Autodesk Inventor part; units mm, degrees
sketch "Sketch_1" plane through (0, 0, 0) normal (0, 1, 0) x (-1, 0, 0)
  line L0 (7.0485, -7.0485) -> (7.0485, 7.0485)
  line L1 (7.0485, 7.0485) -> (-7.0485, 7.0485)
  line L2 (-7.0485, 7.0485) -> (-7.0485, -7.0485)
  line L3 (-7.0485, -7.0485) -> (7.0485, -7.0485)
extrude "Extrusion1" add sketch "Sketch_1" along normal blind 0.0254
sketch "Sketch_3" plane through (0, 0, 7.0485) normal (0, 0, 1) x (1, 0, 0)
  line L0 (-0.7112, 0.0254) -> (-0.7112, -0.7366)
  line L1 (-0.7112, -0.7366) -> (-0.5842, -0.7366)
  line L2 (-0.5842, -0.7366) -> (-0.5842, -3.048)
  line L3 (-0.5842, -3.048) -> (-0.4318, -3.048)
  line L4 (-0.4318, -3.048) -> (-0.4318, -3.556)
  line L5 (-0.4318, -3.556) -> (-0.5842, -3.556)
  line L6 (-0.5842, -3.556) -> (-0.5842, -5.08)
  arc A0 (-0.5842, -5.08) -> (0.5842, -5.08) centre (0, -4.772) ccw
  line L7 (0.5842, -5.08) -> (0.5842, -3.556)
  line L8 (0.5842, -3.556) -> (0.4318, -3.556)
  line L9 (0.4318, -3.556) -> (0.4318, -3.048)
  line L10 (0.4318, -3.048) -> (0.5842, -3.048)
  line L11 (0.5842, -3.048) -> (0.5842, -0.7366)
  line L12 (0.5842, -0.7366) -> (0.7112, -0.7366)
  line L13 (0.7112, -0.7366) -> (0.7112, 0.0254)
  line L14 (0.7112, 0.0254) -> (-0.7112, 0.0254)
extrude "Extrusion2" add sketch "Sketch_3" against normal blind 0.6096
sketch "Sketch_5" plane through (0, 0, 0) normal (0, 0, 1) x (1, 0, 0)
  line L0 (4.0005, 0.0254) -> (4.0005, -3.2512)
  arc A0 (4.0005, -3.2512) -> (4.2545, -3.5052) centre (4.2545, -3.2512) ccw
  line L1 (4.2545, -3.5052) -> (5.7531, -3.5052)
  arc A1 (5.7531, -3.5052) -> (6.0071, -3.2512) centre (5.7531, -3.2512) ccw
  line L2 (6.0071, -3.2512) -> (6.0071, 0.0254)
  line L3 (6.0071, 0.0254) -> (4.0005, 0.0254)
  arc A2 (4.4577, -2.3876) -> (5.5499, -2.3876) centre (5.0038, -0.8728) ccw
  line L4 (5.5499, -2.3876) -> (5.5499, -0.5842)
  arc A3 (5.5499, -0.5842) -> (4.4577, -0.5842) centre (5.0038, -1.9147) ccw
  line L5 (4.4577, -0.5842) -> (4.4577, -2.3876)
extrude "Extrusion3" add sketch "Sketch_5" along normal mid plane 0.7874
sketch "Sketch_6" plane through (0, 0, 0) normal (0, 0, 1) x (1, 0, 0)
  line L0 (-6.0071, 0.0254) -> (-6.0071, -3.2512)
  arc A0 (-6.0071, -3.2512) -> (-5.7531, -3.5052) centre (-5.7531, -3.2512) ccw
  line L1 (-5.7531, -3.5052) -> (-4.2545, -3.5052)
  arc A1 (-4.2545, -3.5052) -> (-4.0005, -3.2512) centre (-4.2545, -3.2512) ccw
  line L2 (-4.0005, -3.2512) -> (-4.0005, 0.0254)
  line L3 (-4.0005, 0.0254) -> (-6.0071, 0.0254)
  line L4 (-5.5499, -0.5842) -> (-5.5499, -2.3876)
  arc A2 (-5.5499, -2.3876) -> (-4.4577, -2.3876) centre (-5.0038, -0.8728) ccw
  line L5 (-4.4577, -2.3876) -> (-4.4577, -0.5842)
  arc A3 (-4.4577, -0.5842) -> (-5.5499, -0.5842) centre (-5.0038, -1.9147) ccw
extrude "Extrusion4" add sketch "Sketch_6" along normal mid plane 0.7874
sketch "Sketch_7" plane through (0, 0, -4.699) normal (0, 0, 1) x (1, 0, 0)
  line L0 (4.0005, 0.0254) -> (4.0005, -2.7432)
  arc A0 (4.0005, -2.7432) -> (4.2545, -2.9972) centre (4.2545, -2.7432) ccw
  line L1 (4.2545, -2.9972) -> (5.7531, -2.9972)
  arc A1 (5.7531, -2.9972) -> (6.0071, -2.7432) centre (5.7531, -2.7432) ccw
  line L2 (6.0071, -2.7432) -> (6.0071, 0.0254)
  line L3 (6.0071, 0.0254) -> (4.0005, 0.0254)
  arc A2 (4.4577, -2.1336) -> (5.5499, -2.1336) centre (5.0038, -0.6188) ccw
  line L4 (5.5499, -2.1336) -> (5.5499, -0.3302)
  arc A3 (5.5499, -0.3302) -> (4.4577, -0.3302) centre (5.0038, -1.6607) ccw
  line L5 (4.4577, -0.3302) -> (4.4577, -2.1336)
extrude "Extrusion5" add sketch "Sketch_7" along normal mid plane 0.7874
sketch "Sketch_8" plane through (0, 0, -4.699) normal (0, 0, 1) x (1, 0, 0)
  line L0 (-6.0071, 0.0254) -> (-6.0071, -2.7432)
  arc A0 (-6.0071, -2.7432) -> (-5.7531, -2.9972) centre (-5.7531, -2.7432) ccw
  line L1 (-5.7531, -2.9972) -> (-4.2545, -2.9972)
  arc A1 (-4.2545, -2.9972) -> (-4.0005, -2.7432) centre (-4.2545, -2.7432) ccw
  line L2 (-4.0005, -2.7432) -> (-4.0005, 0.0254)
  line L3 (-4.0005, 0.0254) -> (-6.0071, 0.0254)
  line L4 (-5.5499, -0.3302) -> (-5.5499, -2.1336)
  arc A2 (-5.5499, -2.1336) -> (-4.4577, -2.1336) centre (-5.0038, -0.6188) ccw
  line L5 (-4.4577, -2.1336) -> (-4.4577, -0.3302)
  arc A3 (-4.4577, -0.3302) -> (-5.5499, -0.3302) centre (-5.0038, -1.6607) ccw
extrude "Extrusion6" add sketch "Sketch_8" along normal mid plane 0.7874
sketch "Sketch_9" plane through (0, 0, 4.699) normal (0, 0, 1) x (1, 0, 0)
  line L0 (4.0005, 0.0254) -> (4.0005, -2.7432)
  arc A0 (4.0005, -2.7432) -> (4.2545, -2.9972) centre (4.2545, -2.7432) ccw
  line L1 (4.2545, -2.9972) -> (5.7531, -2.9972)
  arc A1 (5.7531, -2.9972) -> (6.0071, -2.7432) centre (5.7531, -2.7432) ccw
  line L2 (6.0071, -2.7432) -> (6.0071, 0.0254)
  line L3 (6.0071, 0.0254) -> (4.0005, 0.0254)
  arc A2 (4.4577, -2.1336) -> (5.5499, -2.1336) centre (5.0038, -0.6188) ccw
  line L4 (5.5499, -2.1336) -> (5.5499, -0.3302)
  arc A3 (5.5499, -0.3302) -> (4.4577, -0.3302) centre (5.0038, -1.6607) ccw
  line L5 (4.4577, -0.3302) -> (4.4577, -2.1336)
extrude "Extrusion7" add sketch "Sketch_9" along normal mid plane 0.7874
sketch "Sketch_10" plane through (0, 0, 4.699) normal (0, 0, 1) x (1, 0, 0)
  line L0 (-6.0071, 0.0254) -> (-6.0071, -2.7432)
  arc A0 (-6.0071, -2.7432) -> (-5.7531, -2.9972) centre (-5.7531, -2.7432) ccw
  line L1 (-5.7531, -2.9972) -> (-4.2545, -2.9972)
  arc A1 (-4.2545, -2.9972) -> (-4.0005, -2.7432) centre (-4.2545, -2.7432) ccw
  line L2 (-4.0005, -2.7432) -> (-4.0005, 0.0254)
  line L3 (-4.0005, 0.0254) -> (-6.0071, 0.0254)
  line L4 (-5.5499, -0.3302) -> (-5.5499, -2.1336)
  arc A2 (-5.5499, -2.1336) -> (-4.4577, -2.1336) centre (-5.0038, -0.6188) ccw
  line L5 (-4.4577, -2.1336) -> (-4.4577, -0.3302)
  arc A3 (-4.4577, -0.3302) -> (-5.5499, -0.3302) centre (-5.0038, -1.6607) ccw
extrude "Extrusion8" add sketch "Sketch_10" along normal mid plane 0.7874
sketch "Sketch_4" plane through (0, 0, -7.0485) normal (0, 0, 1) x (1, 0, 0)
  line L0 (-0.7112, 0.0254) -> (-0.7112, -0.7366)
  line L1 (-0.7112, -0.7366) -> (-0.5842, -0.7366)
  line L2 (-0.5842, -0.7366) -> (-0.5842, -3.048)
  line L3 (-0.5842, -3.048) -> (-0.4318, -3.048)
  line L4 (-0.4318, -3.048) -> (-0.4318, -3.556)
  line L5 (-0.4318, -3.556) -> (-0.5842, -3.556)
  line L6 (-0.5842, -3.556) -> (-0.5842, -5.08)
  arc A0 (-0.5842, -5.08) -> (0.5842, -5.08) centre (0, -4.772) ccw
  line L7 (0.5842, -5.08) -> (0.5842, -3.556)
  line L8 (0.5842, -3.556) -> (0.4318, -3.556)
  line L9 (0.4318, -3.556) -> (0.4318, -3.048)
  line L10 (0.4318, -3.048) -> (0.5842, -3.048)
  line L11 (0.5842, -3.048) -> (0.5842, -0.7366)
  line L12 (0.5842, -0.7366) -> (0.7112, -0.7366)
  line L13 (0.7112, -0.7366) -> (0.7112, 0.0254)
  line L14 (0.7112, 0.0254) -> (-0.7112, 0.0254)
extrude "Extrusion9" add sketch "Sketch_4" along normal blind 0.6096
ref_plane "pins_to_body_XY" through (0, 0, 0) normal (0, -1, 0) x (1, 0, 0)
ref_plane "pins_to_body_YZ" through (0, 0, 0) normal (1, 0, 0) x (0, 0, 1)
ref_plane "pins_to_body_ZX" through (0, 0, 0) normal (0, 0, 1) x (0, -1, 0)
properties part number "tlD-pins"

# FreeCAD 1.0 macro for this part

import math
import FreeCAD as App
import Part
import Sketcher
Q = App.Units.Quantity


def add_polygon(sketch, points):
    """Adds a closed chain of lines whose ends are joined by coincident constraints."""
    first, n = sketch.GeometryCount, len(points)
    for a, b in zip(points, points[1:] + points[:1]):
        sketch.addGeometry(Part.LineSegment(App.Vector(*a, 0), App.Vector(*b, 0)), False)
    for i in range(n):
        sketch.addConstraint(Sketcher.Constraint("Coincident", first + i, 2, first + (i + 1) % n, 1))

doc = App.newDocument("Part")
body = doc.addObject("PartDesign::Body", "Body")

# Sketch on XZ plane
sketch1 = doc.addObject("Sketcher::SketchObject", "Sketch")
body.addObject(sketch1)
sketch1.AttachmentSupport = (doc.XZ_Plane, [""])
sketch1.MapMode = "FlatFace"
add_polygon(sketch1, [(7, -7), (-7, -7), (-7, 7), (7, 7)])  # lines 0-3
sketch1.addConstraint(Sketcher.Constraint("Horizontal", 0))
sketch1.addConstraint(Sketcher.Constraint("Vertical", 1))
sketch1.addConstraint(Sketcher.Constraint("Horizontal", 2))
sketch1.addConstraint(Sketcher.Constraint("Vertical", 3))
sketch1.addConstraint(Sketcher.Constraint("Symmetric", 0, 2, 2, 2, -1, 1))
sketch1.addConstraint(Sketcher.Constraint("Equal", 2, 1))
sketch1.addConstraint(Sketcher.Constraint("DistanceX", 0, 2, 0, 1, Q("0.555 in")))
pad1 = doc.addObject("PartDesign::Pad", "Pad")
body.addObject(pad1)
pad1.Profile = sketch1
pad1.Length = Q("0.001 in")
pad1.Reversed = True

# Sketch on XY plane
sketch2 = doc.addObject("Sketcher::SketchObject", "Sketch001")
body.addObject(sketch2)
sketch2.AttachmentSupport = (doc.XY_Plane, [""])
sketch2.MapMode = "FlatFace"
sketch2.AttachmentOffset = App.Placement(App.Vector(0, 0, 0.2775 * 25.4), App.Rotation())
sketch2.addGeometry(Part.LineSegment(App.Vector(0.71, 0.03, 0), App.Vector(-0.71, 0.03, 0)), False)
sketch2.addGeometry(Part.LineSegment(App.Vector(-0.71, 0.03, 0), App.Vector(-0.71, -0.74, 0)), False)
sketch2.addGeometry(Part.LineSegment(App.Vector(-0.71, -0.74, 0), App.Vector(-0.58, -0.74, 0)), False)
sketch2.addGeometry(Part.LineSegment(App.Vector(-0.58, -0.74, 0), App.Vector(-0.58, -3.05, 0)), False)
sketch2.addGeometry(Part.LineSegment(App.Vector(-0.58, -3.05, 0), App.Vector(-0.43, -3.05, 0)), False)
sketch2.addGeometry(Part.LineSegment(App.Vector(-0.43, -3.05, 0), App.Vector(-0.43, -3.56, 0)), False)
sketch2.addGeometry(Part.LineSegment(App.Vector(-0.43, -3.56, 0), App.Vector(-0.58, -3.56, 0)), False)
sketch2.addGeometry(Part.LineSegment(App.Vector(-0.58, -3.56, 0), App.Vector(-0.58, -5.08, 0)), False)
sketch2.addGeometry(Part.ArcOfCircle(Part.Circle(App.Vector(0, -4.77, 0), App.Vector(0, 0, 1), 0.66), math.radians(-152), math.radians(-28)), False)
sketch2.addGeometry(Part.LineSegment(App.Vector(0.58, -5.08, 0), App.Vector(0.58, -3.56, 0)), False)
sketch2.addGeometry(Part.LineSegment(App.Vector(0.58, -3.56, 0), App.Vector(0.43, -3.56, 0)), False)
sketch2.addGeometry(Part.LineSegment(App.Vector(0.43, -3.56, 0), App.Vector(0.43, -3.05, 0)), False)
sketch2.addGeometry(Part.LineSegment(App.Vector(0.43, -3.05, 0), App.Vector(0.58, -3.05, 0)), False)
sketch2.addGeometry(Part.LineSegment(App.Vector(0.58, -3.05, 0), App.Vector(0.58, -0.74, 0)), False)
sketch2.addGeometry(Part.LineSegment(App.Vector(0.58, -0.74, 0), App.Vector(0.71, -0.74, 0)), False)
sketch2.addGeometry(Part.LineSegment(App.Vector(0.71, -0.74, 0), App.Vector(0.71, 0.03, 0)), False)
sketch2.addConstraint(Sketcher.Constraint("Coincident", 0, 2, 1, 1))
sketch2.addConstraint(Sketcher.Constraint("Coincident", 1, 2, 2, 1))
sketch2.addConstraint(Sketcher.Constraint("Coincident", 2, 2, 3, 1))
sketch2.addConstraint(Sketcher.Constraint("Coincident", 3, 2, 4, 1))
sketch2.addConstraint(Sketcher.Constraint("Coincident", 4, 2, 5, 1))
sketch2.addConstraint(Sketcher.Constraint("Coincident", 5, 2, 6, 1))
sketch2.addConstraint(Sketcher.Constraint("Coincident", 6, 2, 7, 1))
sketch2.addConstraint(Sketcher.Constraint("Coincident", 7, 2, 8, 1))
sketch2.addConstraint(Sketcher.Constraint("Coincident", 8, 2, 9, 1))
sketch2.addConstraint(Sketcher.Constraint("Coincident", 9, 2, 10, 1))
sketch2.addConstraint(Sketcher.Constraint("Coincident", 10, 2, 11, 1))
sketch2.addConstraint(Sketcher.Constraint("Coincident", 11, 2, 12, 1))
sketch2.addConstraint(Sketcher.Constraint("Coincident", 12, 2, 13, 1))
sketch2.addConstraint(Sketcher.Constraint("Coincident", 13, 2, 14, 1))
sketch2.addConstraint(Sketcher.Constraint("Coincident", 14, 2, 15, 1))
sketch2.addConstraint(Sketcher.Constraint("Coincident", 15, 2, 0, 1))
sketch2.addConstraint(Sketcher.Constraint("Horizontal", 0))
sketch2.addConstraint(Sketcher.Constraint("Vertical", 1))
sketch2.addConstraint(Sketcher.Constraint("Horizontal", 2))
sketch2.addConstraint(Sketcher.Constraint("Vertical", 3))
sketch2.addConstraint(Sketcher.Constraint("Horizontal", 4))
sketch2.addConstraint(Sketcher.Constraint("Vertical", 5))
sketch2.addConstraint(Sketcher.Constraint("Horizontal", 6))
sketch2.addConstraint(Sketcher.Constraint("Vertical", 7))
sketch2.addConstraint(Sketcher.Constraint("Vertical", 9))
sketch2.addConstraint(Sketcher.Constraint("Horizontal", 10))
sketch2.addConstraint(Sketcher.Constraint("Vertical", 11))
sketch2.addConstraint(Sketcher.Constraint("Horizontal", 12))
sketch2.addConstraint(Sketcher.Constraint("Vertical", 13))
sketch2.addConstraint(Sketcher.Constraint("Horizontal", 14))
sketch2.addConstraint(Sketcher.Constraint("Vertical", 15))
sketch2.addConstraint(Sketcher.Constraint("Symmetric", 7, 2, 8, 2, -2))
sketch2.addConstraint(Sketcher.Constraint("Symmetric", 5, 2, 10, 2, -2))
sketch2.addConstraint(Sketcher.Constraint("Symmetric", 3, 2, 12, 2, -2))
sketch2.addConstraint(Sketcher.Constraint("Symmetric", 1, 2, 14, 2, -2))
sketch2.addConstraint(Sketcher.Constraint("Vertical", 3, 2, 6, 2))
sketch2.addConstraint(Sketcher.Constraint("Radius", 8, Q("0.026 in")))
sketch2.addConstraint(Sketcher.Constraint("DistanceY", 1, 2, 1, 1, Q("0.03 in")))
sketch2.addConstraint(Sketcher.Constraint("DistanceY", 5, 2, 5, 1, Q("0.02 in")))
sketch2.addConstraint(Sketcher.Constraint("DistanceY", 7, 2, 7, 1, Q("0.06 in")))
sketch2.addConstraint(Sketcher.Constraint("DistanceY", 7, 2, -1, 1, Q("0.2 in")))
sketch2.addConstraint(Sketcher.Constraint("DistanceX", 0, 2, 0, 1, Q("0.056 in")))
sketch2.addConstraint(Sketcher.Constraint("DistanceX", 2, 1, 2, 2, Q("0.005 in")))
sketch2.addConstraint(Sketcher.Constraint("DistanceX", 4, 1, 4, 2, Q("0.006 in")))
sketch2.addConstraint(Sketcher.Constraint("DistanceY", 3, 2, 3, 1, Q("0.091 in")))
pad2 = doc.addObject("PartDesign::Pad", "Pad001")
body.addObject(pad2)
pad2.Profile = sketch2
pad2.Length = Q("0.024 in")
pad2.Reversed = True

# Sketch on XY plane
sketch3 = doc.addObject("Sketcher::SketchObject", "Sketch002")
body.addObject(sketch3)
sketch3.AttachmentSupport = (doc.XY_Plane, [""])
sketch3.MapMode = "FlatFace"
sketch3.addGeometry(Part.LineSegment(App.Vector(6.01, 0.03, 0), App.Vector(4, 0.03, 0)), False)
sketch3.addGeometry(Part.LineSegment(App.Vector(4, 0.03, 0), App.Vector(4, -3.25, 0)), False)
sketch3.addGeometry(Part.ArcOfCircle(Part.Circle(App.Vector(4.25, -3.25, 0), App.Vector(0, 0, 1), 0.25), math.radians(180), math.radians(270)), False)
sketch3.addGeometry(Part.LineSegment(App.Vector(4.25, -3.51, 0), App.Vector(5.75, -3.51, 0)), False)
sketch3.addGeometry(Part.ArcOfCircle(Part.Circle(App.Vector(5.75, -3.25, 0), App.Vector(0, 0, 1), 0.25), math.radians(-90), math.radians(0)), False)
sketch3.addGeometry(Part.LineSegment(App.Vector(6.01, -3.25, 0), App.Vector(6.01, 0.03, 0)), False)
sketch3.addGeometry(Part.ArcOfCircle(Part.Circle(App.Vector(5, -0.87, 0), App.Vector(0, 0, 1), 1.61), math.radians(-110), math.radians(-70)), False)
sketch3.addGeometry(Part.LineSegment(App.Vector(4.46, -2.39, 0), App.Vector(4.46, -0.58, 0)), False)
sketch3.addGeometry(Part.ArcOfCircle(Part.Circle(App.Vector(5, -1.91, 0), App.Vector(0, 0, 1), 1.44), math.radians(68), math.radians(112)), False)
sketch3.addGeometry(Part.LineSegment(App.Vector(5.55, -0.58, 0), App.Vector(5.55, -2.39, 0)), False)
sketch3.addConstraint(Sketcher.Constraint("Coincident", 0, 2, 1, 1))
sketch3.addConstraint(Sketcher.Constraint("Tangent", 1, 2, 2, 1))
sketch3.addConstraint(Sketcher.Constraint("Tangent", 2, 2, 3, 1))
sketch3.addConstraint(Sketcher.Constraint("Tangent", 3, 2, 4, 1))
sketch3.addConstraint(Sketcher.Constraint("Tangent", 4, 2, 5, 1))
sketch3.addConstraint(Sketcher.Constraint("Coincident", 5, 2, 0, 1))
sketch3.addConstraint(Sketcher.Constraint("Coincident", 6, 1, 7, 1))
sketch3.addConstraint(Sketcher.Constraint("Coincident", 7, 2, 8, 2))
sketch3.addConstraint(Sketcher.Constraint("Coincident", 8, 1, 9, 1))
sketch3.addConstraint(Sketcher.Constraint("Coincident", 9, 2, 6, 2))
sketch3.addConstraint(Sketcher.Constraint("Horizontal", 0))
sketch3.addConstraint(Sketcher.Constraint("Vertical", 1))
sketch3.addConstraint(Sketcher.Constraint("Horizontal", 3))
sketch3.addConstraint(Sketcher.Constraint("Vertical", 5))
sketch3.addConstraint(Sketcher.Constraint("Vertical", 7))
sketch3.addConstraint(Sketcher.Constraint("Vertical", 9))
sketch3.addConstraint(Sketcher.Constraint("Equal", 2, 4))
sketch3.addConstraint(Sketcher.Constraint("Horizontal", 7, 2, 8, 1))
sketch3.addConstraint(Sketcher.Constraint("Horizontal", 6, 1, 9, 2))
sketch3.addConstraint(Sketcher.Constraint("Radius", 2, Q("0.01 in")))
sketch3.addConstraint(Sketcher.Constraint("Radius", 6, Q("0.0634 in")))
sketch3.addConstraint(Sketcher.Constraint("DistanceX", 0, 2, 0, 1, Q("0.079 in")))
sketch3.addConstraint(Sketcher.Constraint("DistanceY", 1, 2, 1, 1, Q("0.129 in")))
sketch3.addConstraint(Sketcher.Constraint("DistanceY", 7, 1, 7, 2, Q("0.071 in")))
sketch3.addConstraint(Sketcher.Constraint("Radius", 8, Q("1.4382 mm")))
sketch3.addConstraint(Sketcher.Constraint("DistanceY", 2, 3, -1, 1, Q("0.128 in")))
sketch3.addConstraint(Sketcher.Constraint("DistanceX", -1, 1, 6, 3, Q("0.197 in")))
sketch3.addConstraint(Sketcher.Constraint("DistanceY", 6, 1, -1, 1, Q("0.094 in")))
sketch3.addConstraint(Sketcher.Constraint("DistanceX", 2, 3, 6, 1, Q("0.008 in")))
sketch3.addConstraint(Sketcher.Constraint("DistanceX", 8, 1, 5, 2, Q("0.018 in")))
pad3 = doc.addObject("PartDesign::Pad", "Pad002")
body.addObject(pad3)
pad3.Profile = sketch3
pad3.Length = Q("0.031 in")
pad3.Midplane = True

# Sketch on XY plane
sketch4 = doc.addObject("Sketcher::SketchObject", "Sketch003")
body.addObject(sketch4)
sketch4.AttachmentSupport = (doc.XY_Plane, [""])
sketch4.MapMode = "FlatFace"
sketch4.addGeometry(Part.LineSegment(App.Vector(-4, 0.03, 0), App.Vector(-6.01, 0.03, 0)), False)
sketch4.addGeometry(Part.LineSegment(App.Vector(-6.01, 0.03, 0), App.Vector(-6.01, -3.25, 0)), False)
sketch4.addGeometry(Part.ArcOfCircle(Part.Circle(App.Vector(-5.75, -3.25, 0), App.Vector(0, 0, 1), 0.25), math.radians(180), math.radians(270)), False)
sketch4.addGeometry(Part.LineSegment(App.Vector(-5.75, -3.51, 0), App.Vector(-4.25, -3.51, 0)), False)
sketch4.addGeometry(Part.ArcOfCircle(Part.Circle(App.Vector(-4.25, -3.25, 0), App.Vector(0, 0, 1), 0.25), math.radians(-90), math.radians(0)), False)
sketch4.addGeometry(Part.LineSegment(App.Vector(-4, -3.25, 0), App.Vector(-4, 0.03, 0)), False)
sketch4.addGeometry(Part.LineSegment(App.Vector(-5.55, -2.39, 0), App.Vector(-5.55, -0.58, 0)), False)
sketch4.addGeometry(Part.ArcOfCircle(Part.Circle(App.Vector(-5, -1.91, 0), App.Vector(0, 0, 1), 1.44), math.radians(68), math.radians(112)), False)
sketch4.addGeometry(Part.LineSegment(App.Vector(-4.46, -0.58, 0), App.Vector(-4.46, -2.39, 0)), False)
sketch4.addGeometry(Part.ArcOfCircle(Part.Circle(App.Vector(-5, -0.87, 0), App.Vector(0, 0, 1), 1.61), math.radians(-110), math.radians(-70)), False)
sketch4.addConstraint(Sketcher.Constraint("Coincident", 0, 2, 1, 1))
sketch4.addConstraint(Sketcher.Constraint("Tangent", 1, 2, 2, 1))
sketch4.addConstraint(Sketcher.Constraint("Tangent", 2, 2, 3, 1))
sketch4.addConstraint(Sketcher.Constraint("Tangent", 3, 2, 4, 1))
sketch4.addConstraint(Sketcher.Constraint("Tangent", 4, 2, 5, 1))
sketch4.addConstraint(Sketcher.Constraint("Coincident", 5, 2, 0, 1))
sketch4.addConstraint(Sketcher.Constraint("Coincident", 6, 2, 7, 2))
sketch4.addConstraint(Sketcher.Constraint("Coincident", 7, 1, 8, 1))
sketch4.addConstraint(Sketcher.Constraint("Coincident", 8, 2, 9, 2))
sketch4.addConstraint(Sketcher.Constraint("Coincident", 9, 1, 6, 1))
sketch4.addConstraint(Sketcher.Constraint("Horizontal", 0))
sketch4.addConstraint(Sketcher.Constraint("Vertical", 1))
sketch4.addConstraint(Sketcher.Constraint("Horizontal", 3))
sketch4.addConstraint(Sketcher.Constraint("Vertical", 5))
sketch4.addConstraint(Sketcher.Constraint("Vertical", 6))
sketch4.addConstraint(Sketcher.Constraint("Vertical", 8))
sketch4.addConstraint(Sketcher.Constraint("Equal", 2, 4))
sketch4.addConstraint(Sketcher.Constraint("Horizontal", 6, 2, 7, 1))
sketch4.addConstraint(Sketcher.Constraint("Horizontal", 8, 2, 9, 1))
sketch4.addConstraint(Sketcher.Constraint("Radius", 2, Q("0.01 in")))
sketch4.addConstraint(Sketcher.Constraint("Radius", 9, Q("0.0634 in")))
sketch4.addConstraint(Sketcher.Constraint("DistanceX", 0, 2, 0, 1, Q("0.079 in")))
sketch4.addConstraint(Sketcher.Constraint("DistanceY", 1, 2, 1, 1, Q("0.129 in")))
sketch4.addConstraint(Sketcher.Constraint("DistanceY", 6, 1, 6, 2, Q("0.071 in")))
sketch4.addConstraint(Sketcher.Constraint("Radius", 7, Q("1.4382 mm")))
sketch4.addConstraint(Sketcher.Constraint("DistanceY", 2, 3, -1, 1, Q("0.128 in")))
sketch4.addConstraint(Sketcher.Constraint("DistanceX", 7, 3, -1, 1, Q("0.197 in")))
sketch4.addConstraint(Sketcher.Constraint("DistanceY", 6, 2, -1, 1, Q("0.023 in")))
sketch4.addConstraint(Sketcher.Constraint("DistanceX", 0, 2, 6, 2, Q("0.018 in")))
sketch4.addConstraint(Sketcher.Constraint("DistanceX", 7, 1, 5, 2, Q("0.018 in")))
pad4 = doc.addObject("PartDesign::Pad", "Pad003")
body.addObject(pad4)
pad4.Profile = sketch4
pad4.Length = Q("0.031 in")
pad4.Midplane = True

# Sketch on XY plane
sketch5 = doc.addObject("Sketcher::SketchObject", "Sketch004")
body.addObject(sketch5)
sketch5.AttachmentSupport = (doc.XY_Plane, [""])
sketch5.MapMode = "FlatFace"
sketch5.AttachmentOffset = App.Placement(App.Vector(0, 0, -0.185 * 25.4), App.Rotation())
sketch5.addGeometry(Part.LineSegment(App.Vector(6.01, 0.03, 0), App.Vector(4, 0.03, 0)), False)
sketch5.addGeometry(Part.LineSegment(App.Vector(4, 0.03, 0), App.Vector(4, -2.74, 0)), False)
sketch5.addGeometry(Part.ArcOfCircle(Part.Circle(App.Vector(4.25, -2.74, 0), App.Vector(0, 0, 1), 0.25), math.radians(180), math.radians(270)), False)
sketch5.addGeometry(Part.LineSegment(App.Vector(4.25, -3, 0), App.Vector(5.75, -3, 0)), False)
sketch5.addGeometry(Part.ArcOfCircle(Part.Circle(App.Vector(5.75, -2.74, 0), App.Vector(0, 0, 1), 0.25), math.radians(-90), math.radians(0)), False)
sketch5.addGeometry(Part.LineSegment(App.Vector(6.01, -2.74, 0), App.Vector(6.01, 0.03, 0)), False)
sketch5.addGeometry(Part.ArcOfCircle(Part.Circle(App.Vector(5, -0.62, 0), App.Vector(0, 0, 1), 1.61), math.radians(-110), math.radians(-70)), False)
sketch5.addGeometry(Part.LineSegment(App.Vector(4.46, -2.13, 0), App.Vector(4.46, -0.33, 0)), False)
sketch5.addGeometry(Part.ArcOfCircle(Part.Circle(App.Vector(5, -1.66, 0), App.Vector(0, 0, 1), 1.44), math.radians(68), math.radians(112)), False)
sketch5.addGeometry(Part.LineSegment(App.Vector(5.55, -0.33, 0), App.Vector(5.55, -2.13, 0)), False)
sketch5.addConstraint(Sketcher.Constraint("Coincident", 0, 2, 1, 1))
sketch5.addConstraint(Sketcher.Constraint("Tangent", 1, 2, 2, 1))
sketch5.addConstraint(Sketcher.Constraint("Tangent", 2, 2, 3, 1))
sketch5.addConstraint(Sketcher.Constraint("Tangent", 3, 2, 4, 1))
sketch5.addConstraint(Sketcher.Constraint("Tangent", 4, 2, 5, 1))
sketch5.addConstraint(Sketcher.Constraint("Coincident", 5, 2, 0, 1))
sketch5.addConstraint(Sketcher.Constraint("Coincident", 6, 1, 7, 1))
sketch5.addConstraint(Sketcher.Constraint("Coincident", 7, 2, 8, 2))
sketch5.addConstraint(Sketcher.Constraint("Coincident", 8, 1, 9, 1))
sketch5.addConstraint(Sketcher.Constraint("Coincident", 9, 2, 6, 2))
sketch5.addConstraint(Sketcher.Constraint("Horizontal", 0))
sketch5.addConstraint(Sketcher.Constraint("Vertical", 1))
sketch5.addConstraint(Sketcher.Constraint("Horizontal", 3))
sketch5.addConstraint(Sketcher.Constraint("Vertical", 5))
sketch5.addConstraint(Sketcher.Constraint("Vertical", 7))
sketch5.addConstraint(Sketcher.Constraint("Vertical", 9))
sketch5.addConstraint(Sketcher.Constraint("Equal", 2, 4))
sketch5.addConstraint(Sketcher.Constraint("Horizontal", 7, 2, 8, 1))
sketch5.addConstraint(Sketcher.Constraint("Horizontal", 6, 1, 9, 2))
sketch5.addConstraint(Sketcher.Constraint("Radius", 2, Q("0.01 in")))
sketch5.addConstraint(Sketcher.Constraint("Radius", 6, Q("0.0634 in")))
sketch5.addConstraint(Sketcher.Constraint("DistanceX", 0, 2, 0, 1, Q("0.079 in")))
sketch5.addConstraint(Sketcher.Constraint("DistanceY", 1, 2, 1, 1, Q("0.109 in")))
sketch5.addConstraint(Sketcher.Constraint("DistanceY", 7, 1, 7, 2, Q("0.071 in")))
sketch5.addConstraint(Sketcher.Constraint("Radius", 8, Q("1.4382 mm")))
sketch5.addConstraint(Sketcher.Constraint("DistanceY", 2, 3, -1, 1, Q("0.108 in")))
sketch5.addConstraint(Sketcher.Constraint("DistanceX", -1, 1, 6, 3, Q("0.197 in")))
sketch5.addConstraint(Sketcher.Constraint("DistanceY", 6, 1, -1, 1, Q("0.084 in")))
sketch5.addConstraint(Sketcher.Constraint("DistanceX", 2, 3, 6, 1, Q("0.008 in")))
sketch5.addConstraint(Sketcher.Constraint("DistanceX", 8, 1, 5, 2, Q("0.018 in")))
pad5 = doc.addObject("PartDesign::Pad", "Pad004")
body.addObject(pad5)
pad5.Profile = sketch5
pad5.Length = Q("0.031 in")
pad5.Midplane = True

# Sketch on XY plane
sketch6 = doc.addObject("Sketcher::SketchObject", "Sketch005")
body.addObject(sketch6)
sketch6.AttachmentSupport = (doc.XY_Plane, [""])
sketch6.MapMode = "FlatFace"
sketch6.AttachmentOffset = App.Placement(App.Vector(0, 0, -0.185 * 25.4), App.Rotation())
sketch6.addGeometry(Part.LineSegment(App.Vector(-4, 0.03, 0), App.Vector(-6.01, 0.03, 0)), False)
sketch6.addGeometry(Part.LineSegment(App.Vector(-6.01, 0.03, 0), App.Vector(-6.01, -2.74, 0)), False)
sketch6.addGeometry(Part.ArcOfCircle(Part.Circle(App.Vector(-5.75, -2.74, 0), App.Vector(0, 0, 1), 0.25), math.radians(180), math.radians(270)), False)
sketch6.addGeometry(Part.LineSegment(App.Vector(-5.75, -3, 0), App.Vector(-4.25, -3, 0)), False)
sketch6.addGeometry(Part.ArcOfCircle(Part.Circle(App.Vector(-4.25, -2.74, 0), App.Vector(0, 0, 1), 0.25), math.radians(-90), math.radians(0)), False)
sketch6.addGeometry(Part.LineSegment(App.Vector(-4, -2.74, 0), App.Vector(-4, 0.03, 0)), False)
sketch6.addGeometry(Part.LineSegment(App.Vector(-5.55, -2.13, 0), App.Vector(-5.55, -0.33, 0)), False)
sketch6.addGeometry(Part.ArcOfCircle(Part.Circle(App.Vector(-5, -1.66, 0), App.Vector(0, 0, 1), 1.44), math.radians(68), math.radians(112)), False)
sketch6.addGeometry(Part.LineSegment(App.Vector(-4.46, -0.33, 0), App.Vector(-4.46, -2.13, 0)), False)
sketch6.addGeometry(Part.ArcOfCircle(Part.Circle(App.Vector(-5, -0.62, 0), App.Vector(0, 0, 1), 1.61), math.radians(-110), math.radians(-70)), False)
sketch6.addConstraint(Sketcher.Constraint("Coincident", 0, 2, 1, 1))
sketch6.addConstraint(Sketcher.Constraint("Tangent", 1, 2, 2, 1))
sketch6.addConstraint(Sketcher.Constraint("Tangent", 2, 2, 3, 1))
sketch6.addConstraint(Sketcher.Constraint("Tangent", 3, 2, 4, 1))
sketch6.addConstraint(Sketcher.Constraint("Tangent", 4, 2, 5, 1))
sketch6.addConstraint(Sketcher.Constraint("Coincident", 5, 2, 0, 1))
sketch6.addConstraint(Sketcher.Constraint("Coincident", 6, 2, 7, 2))
sketch6.addConstraint(Sketcher.Constraint("Coincident", 7, 1, 8, 1))
sketch6.addConstraint(Sketcher.Constraint("Coincident", 8, 2, 9, 2))
sketch6.addConstraint(Sketcher.Constraint("Coincident", 9, 1, 6, 1))
sketch6.addConstraint(Sketcher.Constraint("Horizontal", 0))
sketch6.addConstraint(Sketcher.Constraint("Vertical", 1))
sketch6.addConstraint(Sketcher.Constraint("Horizontal", 3))
sketch6.addConstraint(Sketcher.Constraint("Vertical", 5))
sketch6.addConstraint(Sketcher.Constraint("Vertical", 6))
sketch6.addConstraint(Sketcher.Constraint("Vertical", 8))
sketch6.addConstraint(Sketcher.Constraint("Equal", 2, 4))
sketch6.addConstraint(Sketcher.Constraint("Horizontal", 6, 2, 7, 1))
sketch6.addConstraint(Sketcher.Constraint("Horizontal", 8, 2, 9, 1))
sketch6.addConstraint(Sketcher.Constraint("Radius", 2, Q("0.01 in")))
sketch6.addConstraint(Sketcher.Constraint("Radius", 9, Q("0.0634 in")))
sketch6.addConstraint(Sketcher.Constraint("DistanceX", 0, 2, 0, 1, Q("0.079 in")))
sketch6.addConstraint(Sketcher.Constraint("DistanceY", 1, 2, 1, 1, Q("0.109 in")))
sketch6.addConstraint(Sketcher.Constraint("DistanceY", 6, 1, 6, 2, Q("0.071 in")))
sketch6.addConstraint(Sketcher.Constraint("Radius", 7, Q("1.4382 mm")))
sketch6.addConstraint(Sketcher.Constraint("DistanceY", 2, 3, -1, 1, Q("0.108 in")))
sketch6.addConstraint(Sketcher.Constraint("DistanceX", 7, 3, -1, 1, Q("0.197 in")))
sketch6.addConstraint(Sketcher.Constraint("DistanceY", 6, 2, -1, 1, Q("0.013 in")))
sketch6.addConstraint(Sketcher.Constraint("DistanceX", 0, 2, 6, 2, Q("0.018 in")))
sketch6.addConstraint(Sketcher.Constraint("DistanceX", 7, 1, 5, 2, Q("0.018 in")))
pad6 = doc.addObject("PartDesign::Pad", "Pad005")
body.addObject(pad6)
pad6.Profile = sketch6
pad6.Length = Q("0.031 in")
pad6.Midplane = True

# Sketch on XY plane
sketch7 = doc.addObject("Sketcher::SketchObject", "Sketch006")
body.addObject(sketch7)
sketch7.AttachmentSupport = (doc.XY_Plane, [""])
sketch7.MapMode = "FlatFace"
sketch7.AttachmentOffset = App.Placement(App.Vector(0, 0, 0.185 * 25.4), App.Rotation())
sketch7.addGeometry(Part.LineSegment(App.Vector(6.01, 0.03, 0), App.Vector(4, 0.03, 0)), False)
sketch7.addGeometry(Part.LineSegment(App.Vector(4, 0.03, 0), App.Vector(4, -2.74, 0)), False)
sketch7.addGeometry(Part.ArcOfCircle(Part.Circle(App.Vector(4.25, -2.74, 0), App.Vector(0, 0, 1), 0.25), math.radians(180), math.radians(270)), False)
sketch7.addGeometry(Part.LineSegment(App.Vector(4.25, -3, 0), App.Vector(5.75, -3, 0)), False)
sketch7.addGeometry(Part.ArcOfCircle(Part.Circle(App.Vector(5.75, -2.74, 0), App.Vector(0, 0, 1), 0.25), math.radians(-90), math.radians(0)), False)
sketch7.addGeometry(Part.LineSegment(App.Vector(6.01, -2.74, 0), App.Vector(6.01, 0.03, 0)), False)
sketch7.addGeometry(Part.ArcOfCircle(Part.Circle(App.Vector(5, -0.62, 0), App.Vector(0, 0, 1), 1.61), math.radians(-110), math.radians(-70)), False)
sketch7.addGeometry(Part.LineSegment(App.Vector(4.46, -2.13, 0), App.Vector(4.46, -0.33, 0)), False)
sketch7.addGeometry(Part.ArcOfCircle(Part.Circle(App.Vector(5, -1.66, 0), App.Vector(0, 0, 1), 1.44), math.radians(68), math.radians(112)), False)
sketch7.addGeometry(Part.LineSegment(App.Vector(5.55, -0.33, 0), App.Vector(5.55, -2.13, 0)), False)
sketch7.addConstraint(Sketcher.Constraint("Coincident", 0, 2, 1, 1))
sketch7.addConstraint(Sketcher.Constraint("Tangent", 1, 2, 2, 1))
sketch7.addConstraint(Sketcher.Constraint("Tangent", 2, 2, 3, 1))
sketch7.addConstraint(Sketcher.Constraint("Tangent", 3, 2, 4, 1))
sketch7.addConstraint(Sketcher.Constraint("Tangent", 4, 2, 5, 1))
sketch7.addConstraint(Sketcher.Constraint("Coincident", 5, 2, 0, 1))
sketch7.addConstraint(Sketcher.Constraint("Coincident", 6, 1, 7, 1))
sketch7.addConstraint(Sketcher.Constraint("Coincident", 7, 2, 8, 2))
sketch7.addConstraint(Sketcher.Constraint("Coincident", 8, 1, 9, 1))
sketch7.addConstraint(Sketcher.Constraint("Coincident", 9, 2, 6, 2))
sketch7.addConstraint(Sketcher.Constraint("Horizontal", 0))
sketch7.addConstraint(Sketcher.Constraint("Vertical", 1))
sketch7.addConstraint(Sketcher.Constraint("Horizontal", 3))
sketch7.addConstraint(Sketcher.Constraint("Vertical", 5))
sketch7.addConstraint(Sketcher.Constraint("Vertical", 7))
sketch7.addConstraint(Sketcher.Constraint("Vertical", 9))
sketch7.addConstraint(Sketcher.Constraint("Equal", 2, 4))
sketch7.addConstraint(Sketcher.Constraint("Horizontal", 7, 2, 8, 1))
sketch7.addConstraint(Sketcher.Constraint("Horizontal", 6, 1, 9, 2))
sketch7.addConstraint(Sketcher.Constraint("Radius", 2, Q("0.01 in")))
sketch7.addConstraint(Sketcher.Constraint("Radius", 6, Q("0.0634 in")))
sketch7.addConstraint(Sketcher.Constraint("DistanceX", 0, 2, 0, 1, Q("0.079 in")))
sketch7.addConstraint(Sketcher.Constraint("DistanceY", 1, 2, 1, 1, Q("0.109 in")))
sketch7.addConstraint(Sketcher.Constraint("DistanceY", 7, 1, 7, 2, Q("0.071 in")))
sketch7.addConstraint(Sketcher.Constraint("Radius", 8, Q("1.4382 mm")))
sketch7.addConstraint(Sketcher.Constraint("DistanceY", 2, 3, -1, 1, Q("0.108 in")))
sketch7.addConstraint(Sketcher.Constraint("DistanceX", -1, 1, 6, 3, Q("0.197 in")))
sketch7.addConstraint(Sketcher.Constraint("DistanceY", 6, 1, -1, 1, Q("0.084 in")))
sketch7.addConstraint(Sketcher.Constraint("DistanceX", 2, 3, 6, 1, Q("0.008 in")))
sketch7.addConstraint(Sketcher.Constraint("DistanceX", 8, 1, 5, 2, Q("0.018 in")))
pad7 = doc.addObject("PartDesign::Pad", "Pad006")
body.addObject(pad7)
pad7.Profile = sketch7
pad7.Length = Q("0.031 in")
pad7.Midplane = True

# Sketch on XY plane
sketch8 = doc.addObject("Sketcher::SketchObject", "Sketch007")
body.addObject(sketch8)
sketch8.AttachmentSupport = (doc.XY_Plane, [""])
sketch8.MapMode = "FlatFace"
sketch8.AttachmentOffset = App.Placement(App.Vector(0, 0, 0.185 * 25.4), App.Rotation())
sketch8.addGeometry(Part.LineSegment(App.Vector(-4, 0.03, 0), App.Vector(-6.01, 0.03, 0)), False)
sketch8.addGeometry(Part.LineSegment(App.Vector(-6.01, 0.03, 0), App.Vector(-6.01, -2.74, 0)), False)
sketch8.addGeometry(Part.ArcOfCircle(Part.Circle(App.Vector(-5.75, -2.74, 0), App.Vector(0, 0, 1), 0.25), math.radians(180), math.radians(270)), False)
sketch8.addGeometry(Part.LineSegment(App.Vector(-5.75, -3, 0), App.Vector(-4.25, -3, 0)), False)
sketch8.addGeometry(Part.ArcOfCircle(Part.Circle(App.Vector(-4.25, -2.74, 0), App.Vector(0, 0, 1), 0.25), math.radians(-90), math.radians(0)), False)
sketch8.addGeometry(Part.LineSegment(App.Vector(-4, -2.74, 0), App.Vector(-4, 0.03, 0)), False)
sketch8.addGeometry(Part.LineSegment(App.Vector(-5.55, -2.13, 0), App.Vector(-5.55, -0.33, 0)), False)
sketch8.addGeometry(Part.ArcOfCircle(Part.Circle(App.Vector(-5, -1.66, 0), App.Vector(0, 0, 1), 1.44), math.radians(68), math.radians(112)), False)
sketch8.addGeometry(Part.LineSegment(App.Vector(-4.46, -0.33, 0), App.Vector(-4.46, -2.13, 0)), False)
sketch8.addGeometry(Part.ArcOfCircle(Part.Circle(App.Vector(-5, -0.62, 0), App.Vector(0, 0, 1), 1.61), math.radians(-110), math.radians(-70)), False)
sketch8.addConstraint(Sketcher.Constraint("Coincident", 0, 2, 1, 1))
sketch8.addConstraint(Sketcher.Constraint("Tangent", 1, 2, 2, 1))
sketch8.addConstraint(Sketcher.Constraint("Tangent", 2, 2, 3, 1))
sketch8.addConstraint(Sketcher.Constraint("Tangent", 3, 2, 4, 1))
sketch8.addConstraint(Sketcher.Constraint("Tangent", 4, 2, 5, 1))
sketch8.addConstraint(Sketcher.Constraint("Coincident", 5, 2, 0, 1))
sketch8.addConstraint(Sketcher.Constraint("Coincident", 6, 2, 7, 2))
sketch8.addConstraint(Sketcher.Constraint("Coincident", 7, 1, 8, 1))
sketch8.addConstraint(Sketcher.Constraint("Coincident", 8, 2, 9, 2))
sketch8.addConstraint(Sketcher.Constraint("Coincident", 9, 1, 6, 1))
sketch8.addConstraint(Sketcher.Constraint("Horizontal", 0))
sketch8.addConstraint(Sketcher.Constraint("Vertical", 1))
sketch8.addConstraint(Sketcher.Constraint("Horizontal", 3))
sketch8.addConstraint(Sketcher.Constraint("Vertical", 5))
sketch8.addConstraint(Sketcher.Constraint("Vertical", 6))
sketch8.addConstraint(Sketcher.Constraint("Vertical", 8))
sketch8.addConstraint(Sketcher.Constraint("Equal", 2, 4))
sketch8.addConstraint(Sketcher.Constraint("Horizontal", 6, 2, 7, 1))
sketch8.addConstraint(Sketcher.Constraint("Horizontal", 8, 2, 9, 1))
sketch8.addConstraint(Sketcher.Constraint("Radius", 2, Q("0.01 in")))
sketch8.addConstraint(Sketcher.Constraint("Radius", 9, Q("0.0634 in")))
sketch8.addConstraint(Sketcher.Constraint("DistanceX", 0, 2, 0, 1, Q("0.079 in")))
sketch8.addConstraint(Sketcher.Constraint("DistanceY", 1, 2, 1, 1, Q("0.109 in")))
sketch8.addConstraint(Sketcher.Constraint("DistanceY", 6, 1, 6, 2, Q("0.071 in")))
sketch8.addConstraint(Sketcher.Constraint("Radius", 7, Q("1.4382 mm")))
sketch8.addConstraint(Sketcher.Constraint("DistanceY", 2, 3, -1, 1, Q("0.108 in")))
sketch8.addConstraint(Sketcher.Constraint("DistanceX", 7, 3, -1, 1, Q("0.197 in")))
sketch8.addConstraint(Sketcher.Constraint("DistanceY", 6, 2, -1, 1, Q("0.013 in")))
sketch8.addConstraint(Sketcher.Constraint("DistanceX", 0, 2, 6, 2, Q("0.018 in")))
sketch8.addConstraint(Sketcher.Constraint("DistanceX", 7, 1, 5, 2, Q("0.018 in")))
pad8 = doc.addObject("PartDesign::Pad", "Pad007")
body.addObject(pad8)
pad8.Profile = sketch8
pad8.Length = Q("0.031 in")
pad8.Midplane = True

# Sketch on XY plane
sketch9 = doc.addObject("Sketcher::SketchObject", "Sketch008")
body.addObject(sketch9)
sketch9.AttachmentSupport = (doc.XY_Plane, [""])
sketch9.MapMode = "FlatFace"
sketch9.AttachmentOffset = App.Placement(App.Vector(0, 0, -0.2775 * 25.4), App.Rotation())
sketch9.addGeometry(Part.LineSegment(App.Vector(0.71, 0.03, 0), App.Vector(-0.71, 0.03, 0)), False)
sketch9.addGeometry(Part.LineSegment(App.Vector(-0.71, 0.03, 0), App.Vector(-0.71, -0.74, 0)), False)
sketch9.addGeometry(Part.LineSegment(App.Vector(-0.71, -0.74, 0), App.Vector(-0.58, -0.74, 0)), False)
sketch9.addGeometry(Part.LineSegment(App.Vector(-0.58, -0.74, 0), App.Vector(-0.58, -3.05, 0)), False)
sketch9.addGeometry(Part.LineSegment(App.Vector(-0.58, -3.05, 0), App.Vector(-0.43, -3.05, 0)), False)
sketch9.addGeometry(Part.LineSegment(App.Vector(-0.43, -3.05, 0), App.Vector(-0.43, -3.56, 0)), False)
sketch9.addGeometry(Part.LineSegment(App.Vector(-0.43, -3.56, 0), App.Vector(-0.58, -3.56, 0)), False)
sketch9.addGeometry(Part.LineSegment(App.Vector(-0.58, -3.56, 0), App.Vector(-0.58, -5.08, 0)), False)
sketch9.addGeometry(Part.ArcOfCircle(Part.Circle(App.Vector(0, -4.77, 0), App.Vector(0, 0, 1), 0.66), math.radians(-152), math.radians(-28)), False)
sketch9.addGeometry(Part.LineSegment(App.Vector(0.58, -5.08, 0), App.Vector(0.58, -3.56, 0)), False)
sketch9.addGeometry(Part.LineSegment(App.Vector(0.58, -3.56, 0), App.Vector(0.43, -3.56, 0)), False)
sketch9.addGeometry(Part.LineSegment(App.Vector(0.43, -3.56, 0), App.Vector(0.43, -3.05, 0)), False)
sketch9.addGeometry(Part.LineSegment(App.Vector(0.43, -3.05, 0), App.Vector(0.58, -3.05, 0)), False)
sketch9.addGeometry(Part.LineSegment(App.Vector(0.58, -3.05, 0), App.Vector(0.58, -0.74, 0)), False)
sketch9.addGeometry(Part.LineSegment(App.Vector(0.58, -0.74, 0), App.Vector(0.71, -0.74, 0)), False)
sketch9.addGeometry(Part.LineSegment(App.Vector(0.71, -0.74, 0), App.Vector(0.71, 0.03, 0)), False)
sketch9.addConstraint(Sketcher.Constraint("Coincident", 0, 2, 1, 1))
sketch9.addConstraint(Sketcher.Constraint("Coincident", 1, 2, 2, 1))
sketch9.addConstraint(Sketcher.Constraint("Coincident", 2, 2, 3, 1))
sketch9.addConstraint(Sketcher.Constraint("Coincident", 3, 2, 4, 1))
sketch9.addConstraint(Sketcher.Constraint("Coincident", 4, 2, 5, 1))
sketch9.addConstraint(Sketcher.Constraint("Coincident", 5, 2, 6, 1))
sketch9.addConstraint(Sketcher.Constraint("Coincident", 6, 2, 7, 1))
sketch9.addConstraint(Sketcher.Constraint("Coincident", 7, 2, 8, 1))
sketch9.addConstraint(Sketcher.Constraint("Coincident", 8, 2, 9, 1))
sketch9.addConstraint(Sketcher.Constraint("Coincident", 9, 2, 10, 1))
sketch9.addConstraint(Sketcher.Constraint("Coincident", 10, 2, 11, 1))
sketch9.addConstraint(Sketcher.Constraint("Coincident", 11, 2, 12, 1))
sketch9.addConstraint(Sketcher.Constraint("Coincident", 12, 2, 13, 1))
sketch9.addConstraint(Sketcher.Constraint("Coincident", 13, 2, 14, 1))
sketch9.addConstraint(Sketcher.Constraint("Coincident", 14, 2, 15, 1))
sketch9.addConstraint(Sketcher.Constraint("Coincident", 15, 2, 0, 1))
sketch9.addConstraint(Sketcher.Constraint("Horizontal", 0))
sketch9.addConstraint(Sketcher.Constraint("Vertical", 1))
sketch9.addConstraint(Sketcher.Constraint("Horizontal", 2))
sketch9.addConstraint(Sketcher.Constraint("Vertical", 3))
sketch9.addConstraint(Sketcher.Constraint("Horizontal", 4))
sketch9.addConstraint(Sketcher.Constraint("Vertical", 5))
sketch9.addConstraint(Sketcher.Constraint("Horizontal", 6))
sketch9.addConstraint(Sketcher.Constraint("Vertical", 7))
sketch9.addConstraint(Sketcher.Constraint("Vertical", 9))
sketch9.addConstraint(Sketcher.Constraint("Horizontal", 10))
sketch9.addConstraint(Sketcher.Constraint("Vertical", 11))
sketch9.addConstraint(Sketcher.Constraint("Horizontal", 12))
sketch9.addConstraint(Sketcher.Constraint("Vertical", 13))
sketch9.addConstraint(Sketcher.Constraint("Horizontal", 14))
sketch9.addConstraint(Sketcher.Constraint("Vertical", 15))
sketch9.addConstraint(Sketcher.Constraint("Symmetric", 7, 2, 8, 2, -2))
sketch9.addConstraint(Sketcher.Constraint("Symmetric", 5, 2, 10, 2, -2))
sketch9.addConstraint(Sketcher.Constraint("Symmetric", 3, 2, 12, 2, -2))
sketch9.addConstraint(Sketcher.Constraint("Symmetric", 1, 2, 14, 2, -2))
sketch9.addConstraint(Sketcher.Constraint("Vertical", 3, 2, 6, 2))
sketch9.addConstraint(Sketcher.Constraint("Radius", 8, Q("0.026 in")))
sketch9.addConstraint(Sketcher.Constraint("DistanceY", 1, 2, 1, 1, Q("0.03 in")))
sketch9.addConstraint(Sketcher.Constraint("DistanceY", 5, 2, 5, 1, Q("0.02 in")))
sketch9.addConstraint(Sketcher.Constraint("DistanceY", 7, 2, 7, 1, Q("0.06 in")))
sketch9.addConstraint(Sketcher.Constraint("DistanceY", 7, 2, -1, 1, Q("0.2 in")))
sketch9.addConstraint(Sketcher.Constraint("DistanceX", 0, 2, 0, 1, Q("0.056 in")))
sketch9.addConstraint(Sketcher.Constraint("DistanceX", 2, 1, 2, 2, Q("0.005 in")))
sketch9.addConstraint(Sketcher.Constraint("DistanceX", 4, 1, 4, 2, Q("0.006 in")))
sketch9.addConstraint(Sketcher.Constraint("DistanceY", 3, 2, 3, 1, Q("0.091 in")))
pad9 = doc.addObject("PartDesign::Pad", "Pad008")
body.addObject(pad9)
pad9.Profile = sketch9
pad9.Length = Q("0.024 in")

doc.recompute()
